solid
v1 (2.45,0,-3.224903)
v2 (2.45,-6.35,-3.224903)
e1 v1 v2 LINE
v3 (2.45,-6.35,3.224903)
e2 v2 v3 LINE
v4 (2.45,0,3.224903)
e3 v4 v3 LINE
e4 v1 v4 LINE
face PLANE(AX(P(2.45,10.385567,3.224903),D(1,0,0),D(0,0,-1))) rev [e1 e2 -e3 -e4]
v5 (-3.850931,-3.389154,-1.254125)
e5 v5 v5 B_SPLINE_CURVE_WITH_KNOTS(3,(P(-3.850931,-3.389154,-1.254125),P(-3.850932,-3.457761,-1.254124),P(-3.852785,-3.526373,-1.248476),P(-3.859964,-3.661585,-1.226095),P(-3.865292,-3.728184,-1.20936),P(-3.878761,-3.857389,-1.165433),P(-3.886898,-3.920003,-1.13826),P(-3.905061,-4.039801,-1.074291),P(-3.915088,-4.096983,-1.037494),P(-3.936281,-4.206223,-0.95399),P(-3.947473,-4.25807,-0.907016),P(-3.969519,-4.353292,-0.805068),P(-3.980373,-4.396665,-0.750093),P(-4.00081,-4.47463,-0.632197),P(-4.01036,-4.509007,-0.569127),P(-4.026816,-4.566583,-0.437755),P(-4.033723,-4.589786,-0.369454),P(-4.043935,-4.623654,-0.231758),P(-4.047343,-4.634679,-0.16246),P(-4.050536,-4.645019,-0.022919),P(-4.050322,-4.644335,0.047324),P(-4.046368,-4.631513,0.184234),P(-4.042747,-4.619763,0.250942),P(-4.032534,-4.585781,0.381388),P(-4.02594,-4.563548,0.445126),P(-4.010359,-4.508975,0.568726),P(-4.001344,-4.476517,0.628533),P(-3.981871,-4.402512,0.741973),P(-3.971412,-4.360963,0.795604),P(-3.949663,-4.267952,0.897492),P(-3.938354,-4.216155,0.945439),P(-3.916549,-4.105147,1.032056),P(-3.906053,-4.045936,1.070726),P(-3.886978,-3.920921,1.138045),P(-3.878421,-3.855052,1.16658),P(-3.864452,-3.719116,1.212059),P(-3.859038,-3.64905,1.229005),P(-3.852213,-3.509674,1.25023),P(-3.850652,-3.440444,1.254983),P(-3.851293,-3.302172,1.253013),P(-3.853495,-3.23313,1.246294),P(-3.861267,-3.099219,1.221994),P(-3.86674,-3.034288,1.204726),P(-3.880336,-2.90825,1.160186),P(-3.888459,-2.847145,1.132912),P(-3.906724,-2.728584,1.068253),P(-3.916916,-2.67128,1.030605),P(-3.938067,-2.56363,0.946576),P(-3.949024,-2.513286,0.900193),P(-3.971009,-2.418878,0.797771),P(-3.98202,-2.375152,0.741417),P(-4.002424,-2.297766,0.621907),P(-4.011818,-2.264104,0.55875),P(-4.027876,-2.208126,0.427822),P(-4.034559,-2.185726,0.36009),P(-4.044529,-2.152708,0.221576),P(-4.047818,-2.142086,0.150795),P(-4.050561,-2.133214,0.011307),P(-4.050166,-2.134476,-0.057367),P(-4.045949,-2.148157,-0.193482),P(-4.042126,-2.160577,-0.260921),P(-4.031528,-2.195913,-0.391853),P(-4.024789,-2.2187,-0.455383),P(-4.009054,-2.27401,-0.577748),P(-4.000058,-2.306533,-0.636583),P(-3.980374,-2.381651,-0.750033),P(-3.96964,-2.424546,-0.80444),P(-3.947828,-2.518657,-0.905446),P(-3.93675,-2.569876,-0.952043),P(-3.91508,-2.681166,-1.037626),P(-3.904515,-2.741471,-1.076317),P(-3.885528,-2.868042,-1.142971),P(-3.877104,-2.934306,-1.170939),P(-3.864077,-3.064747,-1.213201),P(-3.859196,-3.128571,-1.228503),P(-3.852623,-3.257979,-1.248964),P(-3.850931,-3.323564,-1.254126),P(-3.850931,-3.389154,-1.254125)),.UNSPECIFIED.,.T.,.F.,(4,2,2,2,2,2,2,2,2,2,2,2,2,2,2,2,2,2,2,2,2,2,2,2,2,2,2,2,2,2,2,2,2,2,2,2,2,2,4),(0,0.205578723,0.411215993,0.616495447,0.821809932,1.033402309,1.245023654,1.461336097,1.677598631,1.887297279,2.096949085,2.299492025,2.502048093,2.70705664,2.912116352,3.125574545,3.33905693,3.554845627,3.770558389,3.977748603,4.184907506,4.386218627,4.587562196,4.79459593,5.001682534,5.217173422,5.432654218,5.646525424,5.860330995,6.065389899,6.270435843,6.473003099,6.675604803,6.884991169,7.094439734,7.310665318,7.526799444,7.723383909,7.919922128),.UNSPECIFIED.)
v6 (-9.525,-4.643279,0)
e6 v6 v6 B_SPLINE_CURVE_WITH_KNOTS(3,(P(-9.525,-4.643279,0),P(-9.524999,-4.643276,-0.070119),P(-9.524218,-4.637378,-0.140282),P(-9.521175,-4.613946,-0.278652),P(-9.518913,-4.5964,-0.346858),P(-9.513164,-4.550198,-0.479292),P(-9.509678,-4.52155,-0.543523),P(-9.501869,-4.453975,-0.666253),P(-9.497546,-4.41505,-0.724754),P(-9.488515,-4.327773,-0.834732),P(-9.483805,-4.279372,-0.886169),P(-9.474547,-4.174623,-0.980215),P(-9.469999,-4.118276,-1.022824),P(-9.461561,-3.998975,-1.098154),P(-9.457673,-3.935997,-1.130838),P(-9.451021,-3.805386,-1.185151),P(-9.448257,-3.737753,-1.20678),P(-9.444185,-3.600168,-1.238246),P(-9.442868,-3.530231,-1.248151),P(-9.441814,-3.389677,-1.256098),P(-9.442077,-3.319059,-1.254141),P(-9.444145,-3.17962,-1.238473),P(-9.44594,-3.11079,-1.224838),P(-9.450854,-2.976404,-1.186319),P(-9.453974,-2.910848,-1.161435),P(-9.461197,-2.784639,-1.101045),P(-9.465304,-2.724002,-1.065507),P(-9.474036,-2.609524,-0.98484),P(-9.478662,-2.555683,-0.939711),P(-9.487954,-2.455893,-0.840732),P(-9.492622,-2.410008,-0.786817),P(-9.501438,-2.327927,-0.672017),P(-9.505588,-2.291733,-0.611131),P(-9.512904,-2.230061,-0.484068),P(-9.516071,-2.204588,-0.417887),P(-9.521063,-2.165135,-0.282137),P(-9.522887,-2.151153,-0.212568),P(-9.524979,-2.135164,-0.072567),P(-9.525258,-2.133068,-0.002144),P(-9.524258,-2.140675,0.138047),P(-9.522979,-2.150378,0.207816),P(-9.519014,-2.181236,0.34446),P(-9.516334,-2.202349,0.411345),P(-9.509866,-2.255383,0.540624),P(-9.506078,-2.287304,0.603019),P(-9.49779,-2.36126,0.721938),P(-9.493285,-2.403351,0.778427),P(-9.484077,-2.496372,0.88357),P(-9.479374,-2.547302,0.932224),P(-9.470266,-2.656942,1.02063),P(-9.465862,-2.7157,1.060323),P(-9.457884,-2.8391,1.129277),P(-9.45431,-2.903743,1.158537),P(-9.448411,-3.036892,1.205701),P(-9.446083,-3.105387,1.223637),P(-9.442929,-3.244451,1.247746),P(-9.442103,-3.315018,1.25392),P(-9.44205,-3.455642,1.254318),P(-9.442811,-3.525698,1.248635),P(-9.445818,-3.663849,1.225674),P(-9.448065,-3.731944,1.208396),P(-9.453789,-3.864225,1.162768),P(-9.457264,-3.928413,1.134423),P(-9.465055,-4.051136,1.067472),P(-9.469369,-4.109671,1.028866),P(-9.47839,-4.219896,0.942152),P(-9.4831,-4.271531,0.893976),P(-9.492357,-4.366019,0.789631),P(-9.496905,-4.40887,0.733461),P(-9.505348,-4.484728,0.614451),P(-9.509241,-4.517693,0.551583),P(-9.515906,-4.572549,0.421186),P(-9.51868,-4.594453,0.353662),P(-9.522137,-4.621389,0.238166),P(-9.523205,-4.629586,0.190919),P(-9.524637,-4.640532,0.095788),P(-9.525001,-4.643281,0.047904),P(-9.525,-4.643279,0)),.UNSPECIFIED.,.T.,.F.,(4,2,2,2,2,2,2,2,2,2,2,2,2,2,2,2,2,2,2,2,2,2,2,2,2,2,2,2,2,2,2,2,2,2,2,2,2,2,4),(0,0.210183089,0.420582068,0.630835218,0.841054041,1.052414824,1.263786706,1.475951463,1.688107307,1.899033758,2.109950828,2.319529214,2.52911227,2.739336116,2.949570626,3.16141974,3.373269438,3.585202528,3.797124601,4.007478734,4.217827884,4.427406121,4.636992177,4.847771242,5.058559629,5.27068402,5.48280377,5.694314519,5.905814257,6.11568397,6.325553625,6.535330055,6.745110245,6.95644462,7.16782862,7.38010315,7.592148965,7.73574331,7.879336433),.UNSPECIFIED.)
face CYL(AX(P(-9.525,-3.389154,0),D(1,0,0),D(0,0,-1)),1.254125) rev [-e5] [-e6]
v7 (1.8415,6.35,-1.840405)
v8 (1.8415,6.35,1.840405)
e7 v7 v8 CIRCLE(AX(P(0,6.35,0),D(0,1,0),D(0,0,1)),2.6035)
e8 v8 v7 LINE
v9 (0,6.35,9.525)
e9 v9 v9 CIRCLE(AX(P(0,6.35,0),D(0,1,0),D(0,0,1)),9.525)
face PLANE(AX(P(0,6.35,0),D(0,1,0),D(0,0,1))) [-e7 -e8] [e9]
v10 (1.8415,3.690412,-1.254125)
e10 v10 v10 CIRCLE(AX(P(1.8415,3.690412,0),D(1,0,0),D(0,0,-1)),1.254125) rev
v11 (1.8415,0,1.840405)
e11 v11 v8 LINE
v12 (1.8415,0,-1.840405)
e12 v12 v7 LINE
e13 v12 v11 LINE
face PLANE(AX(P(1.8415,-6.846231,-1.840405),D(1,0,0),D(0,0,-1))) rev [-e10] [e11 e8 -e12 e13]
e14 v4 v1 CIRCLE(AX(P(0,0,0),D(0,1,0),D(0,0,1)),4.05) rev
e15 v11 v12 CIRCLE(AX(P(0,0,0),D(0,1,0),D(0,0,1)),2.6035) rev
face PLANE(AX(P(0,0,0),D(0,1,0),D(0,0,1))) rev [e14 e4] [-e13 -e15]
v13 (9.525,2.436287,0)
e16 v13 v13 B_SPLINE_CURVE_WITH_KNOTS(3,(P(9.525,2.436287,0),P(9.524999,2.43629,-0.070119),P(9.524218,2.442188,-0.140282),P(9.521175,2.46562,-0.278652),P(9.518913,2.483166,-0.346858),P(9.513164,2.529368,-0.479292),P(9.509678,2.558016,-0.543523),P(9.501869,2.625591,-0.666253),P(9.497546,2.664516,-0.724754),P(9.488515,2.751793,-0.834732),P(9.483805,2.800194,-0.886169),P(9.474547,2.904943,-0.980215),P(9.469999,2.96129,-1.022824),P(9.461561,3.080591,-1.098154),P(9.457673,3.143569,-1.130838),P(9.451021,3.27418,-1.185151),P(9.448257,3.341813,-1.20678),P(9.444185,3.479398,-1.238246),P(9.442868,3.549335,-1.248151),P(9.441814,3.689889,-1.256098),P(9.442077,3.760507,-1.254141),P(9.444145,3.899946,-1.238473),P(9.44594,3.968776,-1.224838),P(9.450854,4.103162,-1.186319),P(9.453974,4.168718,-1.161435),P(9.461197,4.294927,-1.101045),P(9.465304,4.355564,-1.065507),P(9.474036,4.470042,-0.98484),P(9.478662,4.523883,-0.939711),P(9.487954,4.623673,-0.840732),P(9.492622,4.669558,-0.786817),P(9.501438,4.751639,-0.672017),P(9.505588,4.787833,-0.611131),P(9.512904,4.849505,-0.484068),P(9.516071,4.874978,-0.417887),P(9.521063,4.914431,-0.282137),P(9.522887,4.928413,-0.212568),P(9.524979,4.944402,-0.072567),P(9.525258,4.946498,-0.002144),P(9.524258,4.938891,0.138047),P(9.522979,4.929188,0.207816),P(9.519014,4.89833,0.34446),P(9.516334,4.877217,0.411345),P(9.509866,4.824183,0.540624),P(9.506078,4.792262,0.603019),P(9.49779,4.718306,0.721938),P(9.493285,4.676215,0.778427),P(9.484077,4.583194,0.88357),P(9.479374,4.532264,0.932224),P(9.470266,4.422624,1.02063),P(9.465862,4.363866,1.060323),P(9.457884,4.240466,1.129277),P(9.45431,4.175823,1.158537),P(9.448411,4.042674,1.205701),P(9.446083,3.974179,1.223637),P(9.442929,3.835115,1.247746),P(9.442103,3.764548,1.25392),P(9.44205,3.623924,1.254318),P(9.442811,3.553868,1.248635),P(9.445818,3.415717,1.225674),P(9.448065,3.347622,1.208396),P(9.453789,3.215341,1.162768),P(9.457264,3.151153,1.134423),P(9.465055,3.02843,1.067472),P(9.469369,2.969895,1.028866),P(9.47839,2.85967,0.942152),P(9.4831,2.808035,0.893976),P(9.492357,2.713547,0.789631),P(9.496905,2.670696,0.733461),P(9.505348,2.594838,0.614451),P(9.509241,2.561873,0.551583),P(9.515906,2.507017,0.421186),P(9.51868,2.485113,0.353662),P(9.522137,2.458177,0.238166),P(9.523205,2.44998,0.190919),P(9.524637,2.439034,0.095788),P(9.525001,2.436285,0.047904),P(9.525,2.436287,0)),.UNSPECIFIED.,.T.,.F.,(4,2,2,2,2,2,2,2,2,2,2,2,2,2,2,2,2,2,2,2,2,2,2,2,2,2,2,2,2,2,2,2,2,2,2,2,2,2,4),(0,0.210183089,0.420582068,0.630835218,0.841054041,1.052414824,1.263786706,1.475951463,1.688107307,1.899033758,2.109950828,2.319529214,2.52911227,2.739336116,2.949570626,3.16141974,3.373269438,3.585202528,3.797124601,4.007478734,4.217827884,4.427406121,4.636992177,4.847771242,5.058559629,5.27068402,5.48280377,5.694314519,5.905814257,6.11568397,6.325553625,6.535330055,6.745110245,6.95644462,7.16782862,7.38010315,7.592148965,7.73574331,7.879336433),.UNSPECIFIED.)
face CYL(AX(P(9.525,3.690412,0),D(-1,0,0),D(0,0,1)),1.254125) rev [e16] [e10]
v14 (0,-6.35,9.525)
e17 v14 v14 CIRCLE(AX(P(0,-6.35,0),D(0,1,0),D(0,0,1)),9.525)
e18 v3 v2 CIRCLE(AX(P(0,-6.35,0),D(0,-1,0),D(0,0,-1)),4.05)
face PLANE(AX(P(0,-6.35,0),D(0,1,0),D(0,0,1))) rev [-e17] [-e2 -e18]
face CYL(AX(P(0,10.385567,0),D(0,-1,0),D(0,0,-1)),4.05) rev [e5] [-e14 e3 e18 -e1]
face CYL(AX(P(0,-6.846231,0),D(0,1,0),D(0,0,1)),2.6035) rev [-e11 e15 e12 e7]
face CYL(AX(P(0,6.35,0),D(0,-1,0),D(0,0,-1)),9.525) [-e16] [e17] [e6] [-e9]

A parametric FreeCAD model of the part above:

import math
import FreeCAD as App
import Part
import Sketcher
from FreeCAD import Vector
Q = App.Units.Quantity

doc = App.newDocument("Part")
body = doc.addObject("PartDesign::Body", "Body")

sketch1 = doc.addObject("Sketcher::SketchObject", "Sketch")
body.addObject(sketch1)
sketch1.AttachmentSupport = (doc.XZ_Plane, [""])
sketch1.MapMode = "FlatFace"
sketch1.addGeometry(Part.Circle(Vector(0, 0, 0), Vector(0, 0, 1), 10), False)
sketch1.addConstraint([
    Sketcher.Constraint("Coincident", 0, 3, -1, 1),
    Sketcher.Constraint("Diameter", 0, Q("0.75 in")),
])
pad1 = doc.addObject("PartDesign::Pad", "Pad")
body.addObject(pad1)
pad1.Profile = sketch1
pad1.Length = Q("0.5 in")
pad1.Midplane = True

sketch2 = doc.addObject("Sketcher::SketchObject", "Sketch001")
body.addObject(sketch2)
sketch2.AttachmentSupport = (doc.XZ_Plane, [""])
sketch2.MapMode = "FlatFace"
sketch2.addGeometry([
    Part.LineSegment(Vector(1.8, 1.8, 0), Vector(1.8, -1.8, 0)),
    Part.ArcOfCircle(Part.Circle(Vector(0, 0, 0), Vector(0, 0, 1), 2.6), math.radians(45), math.radians(315)),
], False)
sketch2.addConstraint([
    Sketcher.Constraint("Coincident", 0, 1, 1, 1),
    Sketcher.Constraint("Coincident", 1, 2, 0, 2),
    Sketcher.Constraint("Vertical", 0),
    Sketcher.Constraint("Coincident", 1, 3, -1, 1),
    Sketcher.Constraint("Radius", 1, Q("0.1025 in")),
    Sketcher.Constraint("DistanceX", -1, 1, 0, 1, Q("0.0725 in")),
])
pocket1 = doc.addObject("PartDesign::Pocket", "Pocket")
body.addObject(pocket1)
pocket1.Profile = sketch2
pocket1.Length = Q("0.25 in")

sketch3 = doc.addObject("Sketcher::SketchObject", "Sketch002")
body.addObject(sketch3)
sketch3.AttachmentSupport = (doc.XZ_Plane, [""])
sketch3.MapMode = "FlatFace"
sketch3.addGeometry([
    Part.LineSegment(Vector(2.4, -3.2, 0), Vector(2.4, 3.2, 0)),
    Part.ArcOfCircle(Part.Circle(Vector(0, 0, 0), Vector(0, 0, 1), 4.1), math.radians(53), math.radians(307)),
], False)
sketch3.addConstraint([
    Sketcher.Constraint("Coincident", 0, 1, 1, 2),
    Sketcher.Constraint("Coincident", 1, 1, 0, 2),
    Sketcher.Constraint("Vertical", 0),
    Sketcher.Constraint("Coincident", 1, 3, -1, 1),
    Sketcher.Constraint("Radius", 1, Q("4.05 mm")),
    Sketcher.Constraint("DistanceX", -1, 1, 0, 1, Q("2.45 mm")),
])
pocket2 = doc.addObject("PartDesign::Pocket", "Pocket001")
body.addObject(pocket2)
pocket2.Profile = sketch3
pocket2.Length = Q("0.25 in")
pocket2.Reversed = True

sketch4 = doc.addObject("Sketcher::SketchObject", "Sketch003")
body.addObject(sketch4)
sketch4.AttachmentSupport = (doc.YZ_Plane, [""])
sketch4.MapMode = "FlatFace"
sketch4.addGeometry(Part.Circle(Vector(-3.4, 0, 0), Vector(0, 0, 1), 1.3), False)
sketch4.addConstraint([
    Sketcher.Constraint("PointOnObject", 0, 3, -1),
    Sketcher.Constraint("Diameter", 0, Q("2.50825 mm")),
    Sketcher.Constraint("DistanceX", 0, 3, -1, 1, Q("3.389154 mm")),
])
pocket3 = doc.addObject("PartDesign::Pocket", "Pocket002")
body.addObject(pocket3)
pocket3.Profile = sketch4
pocket3.Type = "ThroughAll"

sketch5 = doc.addObject("Sketcher::SketchObject", "Sketch004")
body.addObject(sketch5)
sketch5.AttachmentSupport = (doc.YZ_Plane, [""])
sketch5.MapMode = "FlatFace"
sketch5.addGeometry(Part.Circle(Vector(3.7, 0, 0), Vector(0, 0, 1), 1.3), False)
sketch5.addConstraint([
    Sketcher.Constraint("PointOnObject", 0, 3, -1),
    Sketcher.Constraint("Diameter", 0, Q("2.50825 mm")),
    Sketcher.Constraint("DistanceX", -1, 1, 0, 3, Q("3.690412 mm")),
])
pocket4 = doc.addObject("PartDesign::Pocket", "Pocket003")
body.addObject(pocket4)
pocket4.Profile = sketch5
pocket4.Type = "ThroughAll"
pocket4.Reversed = True

doc.recompute()
